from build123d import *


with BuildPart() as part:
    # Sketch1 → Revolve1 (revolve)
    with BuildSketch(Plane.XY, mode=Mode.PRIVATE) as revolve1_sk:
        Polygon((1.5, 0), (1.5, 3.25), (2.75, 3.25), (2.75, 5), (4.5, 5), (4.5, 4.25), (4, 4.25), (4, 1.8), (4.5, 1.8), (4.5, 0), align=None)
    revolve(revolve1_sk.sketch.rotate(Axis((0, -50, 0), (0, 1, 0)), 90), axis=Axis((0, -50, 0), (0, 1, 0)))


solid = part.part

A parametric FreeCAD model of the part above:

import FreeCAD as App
import Part
import Sketcher
from FreeCAD import Vector


def add_polygon(sketch, points):
    """Adds a closed chain of lines whose ends are joined by coincident constraints."""
    first, n = sketch.GeometryCount, len(points)
    for a, b in zip(points, points[1:] + points[:1]):
        sketch.addGeometry(Part.LineSegment(App.Vector(*a, 0), App.Vector(*b, 0)), False)
    for i in range(n):
        sketch.addConstraint(Sketcher.Constraint("Coincident", first + i, 2, first + (i + 1) % n, 1))

doc = App.newDocument("Part")
params = doc.addObject("Spreadsheet::Sheet", "Params")
for row, (alias, value) in enumerate([
    ("sketch1_width", "3 mm"),
    ("sketch1_width2", "0.5 mm"),
    ("sketch1_height", "1.8 mm"),
    ("sketch1_width3", "1.75 mm"),
    ("revolution_angle", "360 deg"),
], start=1):
    params.set(f"A{row}", alias)
    params.set(f"B{row}", "=" + value)
    params.setAlias(f"B{row}", alias)

body = doc.addObject("PartDesign::Body", "Body")

# Sketch on XY plane
sketch1 = body.newObject("Sketcher::SketchObject", "Sketch")
sketch1.AttachmentSupport = (doc.getObject("XY_Plane"), [""])
sketch1.MapMode = "FlatFace"
add_polygon(sketch1, [(1.5, 3.25), (1.5, 0), (4.5, 0), (4.5, 1.8), (4, 1.8), (4, 4.25), (4.5, 4.25), (4.5, 5), (2.75, 5), (2.75, 3.25)])  # lines 0-9
sketch1.addConstraint([
    Sketcher.Constraint("Vertical", 0),
    Sketcher.Constraint("Horizontal", 1),
    Sketcher.Constraint("Vertical", 2),
    Sketcher.Constraint("Horizontal", 3),
    Sketcher.Constraint("Vertical", 4),
    Sketcher.Constraint("Horizontal", 5),
    Sketcher.Constraint("Vertical", 6),
    Sketcher.Constraint("Horizontal", 7),
    Sketcher.Constraint("Vertical", 8),
    Sketcher.Constraint("Horizontal", 9),
    Sketcher.Constraint("PointOnObject", 0, 2, -1),
    Sketcher.Constraint("Vertical", 2, 2, 5, 2),
    Sketcher.Constraint("Equal", 7, 8),
    Sketcher.Constraint("DistanceX", 1, 1, 1, 2, 3.0),
    Sketcher.Constraint("DistanceX", 3, 2, 3, 1, 0.5),
    Sketcher.Constraint("DistanceY", 2, 1, 2, 2, 1.8),
    Sketcher.Constraint("DistanceX", -1, 1, 3, 2, 4.0),
    Sketcher.Constraint("DistanceY", -1, 1, 6, 2, 5.0),
    Sketcher.Constraint("DistanceY", 8, 2, 4, 2, 1.0),
    Sketcher.Constraint("DistanceX", 7, 2, 7, 1, 1.75),
])
sketch1.setExpression("Constraints[23]", "Params.sketch1_width")
sketch1.setExpression("Constraints[24]", "Params.sketch1_width2")
sketch1.setExpression("Constraints[25]", "Params.sketch1_height")
sketch1.setExpression("Constraints[29]", "Params.sketch1_width3")
revolution = body.newObject("PartDesign::Revolution", "Revolution")
revolution.Profile = sketch1
revolution.ReferenceAxis = (sketch1, ["V_Axis"])
revolution.setExpression("Angle", "Params.revolution_angle")

doc.recompute()
